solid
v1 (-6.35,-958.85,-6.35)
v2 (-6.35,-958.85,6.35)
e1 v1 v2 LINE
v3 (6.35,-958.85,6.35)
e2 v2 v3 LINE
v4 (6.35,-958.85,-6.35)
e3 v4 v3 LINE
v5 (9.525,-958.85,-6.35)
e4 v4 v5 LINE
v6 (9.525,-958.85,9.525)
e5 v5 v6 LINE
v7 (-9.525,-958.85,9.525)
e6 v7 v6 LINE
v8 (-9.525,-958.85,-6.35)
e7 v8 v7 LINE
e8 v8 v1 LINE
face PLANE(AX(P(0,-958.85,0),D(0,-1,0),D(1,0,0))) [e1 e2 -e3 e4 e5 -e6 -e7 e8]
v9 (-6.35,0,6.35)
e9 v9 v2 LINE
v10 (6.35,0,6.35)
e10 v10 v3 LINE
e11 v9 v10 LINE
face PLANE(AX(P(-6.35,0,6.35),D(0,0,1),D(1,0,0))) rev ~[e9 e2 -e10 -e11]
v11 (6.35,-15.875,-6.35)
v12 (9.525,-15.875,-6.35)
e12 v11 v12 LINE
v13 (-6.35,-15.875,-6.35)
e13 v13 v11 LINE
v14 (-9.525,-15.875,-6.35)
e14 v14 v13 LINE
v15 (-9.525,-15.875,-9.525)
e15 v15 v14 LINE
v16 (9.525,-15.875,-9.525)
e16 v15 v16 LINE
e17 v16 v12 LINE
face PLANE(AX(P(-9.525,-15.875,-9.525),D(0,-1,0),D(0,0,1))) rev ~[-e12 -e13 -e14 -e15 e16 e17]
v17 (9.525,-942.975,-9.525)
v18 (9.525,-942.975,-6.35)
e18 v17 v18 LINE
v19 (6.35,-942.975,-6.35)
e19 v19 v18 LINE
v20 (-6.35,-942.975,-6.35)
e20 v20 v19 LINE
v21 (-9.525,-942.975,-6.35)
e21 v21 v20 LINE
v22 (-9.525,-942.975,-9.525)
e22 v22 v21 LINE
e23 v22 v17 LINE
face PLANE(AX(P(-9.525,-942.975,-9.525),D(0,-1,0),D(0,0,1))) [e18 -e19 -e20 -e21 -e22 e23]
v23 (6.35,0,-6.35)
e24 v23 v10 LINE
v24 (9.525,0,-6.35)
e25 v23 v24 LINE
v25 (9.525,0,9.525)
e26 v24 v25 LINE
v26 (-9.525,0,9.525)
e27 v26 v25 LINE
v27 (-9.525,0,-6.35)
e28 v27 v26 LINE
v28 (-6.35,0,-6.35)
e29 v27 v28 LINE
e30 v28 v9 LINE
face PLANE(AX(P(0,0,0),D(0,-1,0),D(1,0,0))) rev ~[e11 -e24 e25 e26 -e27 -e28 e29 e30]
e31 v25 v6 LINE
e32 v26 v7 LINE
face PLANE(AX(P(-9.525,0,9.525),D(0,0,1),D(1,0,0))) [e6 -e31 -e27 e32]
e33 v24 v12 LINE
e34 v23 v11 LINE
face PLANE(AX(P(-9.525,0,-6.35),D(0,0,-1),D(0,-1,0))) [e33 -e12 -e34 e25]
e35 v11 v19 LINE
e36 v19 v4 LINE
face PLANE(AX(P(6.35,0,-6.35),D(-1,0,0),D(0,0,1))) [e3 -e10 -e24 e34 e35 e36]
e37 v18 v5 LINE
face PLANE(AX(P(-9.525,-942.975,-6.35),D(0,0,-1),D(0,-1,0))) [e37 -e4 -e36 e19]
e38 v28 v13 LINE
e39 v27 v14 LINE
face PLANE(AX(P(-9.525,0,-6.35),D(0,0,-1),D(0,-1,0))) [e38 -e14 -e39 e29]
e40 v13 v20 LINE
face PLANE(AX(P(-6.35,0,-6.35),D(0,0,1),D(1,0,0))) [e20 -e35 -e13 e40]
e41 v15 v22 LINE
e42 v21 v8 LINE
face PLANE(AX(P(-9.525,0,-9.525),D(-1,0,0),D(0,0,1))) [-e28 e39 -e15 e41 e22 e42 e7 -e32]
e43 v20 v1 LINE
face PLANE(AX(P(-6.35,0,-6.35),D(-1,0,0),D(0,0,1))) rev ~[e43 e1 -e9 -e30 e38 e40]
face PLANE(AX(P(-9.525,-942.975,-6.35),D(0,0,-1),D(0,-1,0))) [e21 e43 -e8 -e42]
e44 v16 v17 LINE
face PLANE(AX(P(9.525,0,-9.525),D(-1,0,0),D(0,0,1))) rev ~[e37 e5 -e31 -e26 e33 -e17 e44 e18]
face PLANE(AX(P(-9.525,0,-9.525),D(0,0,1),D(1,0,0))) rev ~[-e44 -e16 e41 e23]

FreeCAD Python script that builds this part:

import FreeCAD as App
import Part
import Sketcher
from FreeCAD import Vector
Q = App.Units.Quantity

doc = App.newDocument("Part")
body = doc.addObject("PartDesign::Body", "Body")

sketch1 = doc.addObject("Sketcher::SketchObject", "Sketch")
body.addObject(sketch1)
sketch1.AttachmentSupport = (doc.XZ_Plane, [""])
sketch1.MapMode = "FlatFace"
sketch1.addGeometry([
    Part.LineSegment(Vector(-10, 10, 0), Vector(-10, -10, 0)),
    Part.LineSegment(Vector(-10, -10, 0), Vector(10, -10, 0)),
    Part.LineSegment(Vector(10, -10, 0), Vector(10, 10, 0)),
    Part.LineSegment(Vector(10, 10, 0), Vector(-10, 10, 0)),
    Part.LineSegment(Vector(6, -6, 0), Vector(-6, -6, 0)),
    Part.LineSegment(Vector(-6, -6, 0), Vector(-6, 6, 0)),
    Part.LineSegment(Vector(-6, 6, 0), Vector(6, 6, 0)),
    Part.LineSegment(Vector(6, 6, 0), Vector(6, -6, 0)),
], False)
sketch1.addConstraint([
    Sketcher.Constraint("Coincident", 0, 2, 1, 1),
    Sketcher.Constraint("Coincident", 1, 2, 2, 1),
    Sketcher.Constraint("Coincident", 2, 2, 3, 1),
    Sketcher.Constraint("Coincident", 3, 2, 0, 1),
    Sketcher.Constraint("Coincident", 4, 2, 5, 1),
    Sketcher.Constraint("Coincident", 5, 2, 6, 1),
    Sketcher.Constraint("Coincident", 6, 2, 7, 1),
    Sketcher.Constraint("Coincident", 7, 2, 4, 1),
    Sketcher.Constraint("Vertical", 0),
    Sketcher.Constraint("Horizontal", 1),
    Sketcher.Constraint("Vertical", 2),
    Sketcher.Constraint("Horizontal", 3),
    Sketcher.Constraint("Horizontal", 4),
    Sketcher.Constraint("Vertical", 5),
    Sketcher.Constraint("Horizontal", 6),
    Sketcher.Constraint("Vertical", 7),
    Sketcher.Constraint("Symmetric", 0, 2, 2, 2, -1, 1),
    Sketcher.Constraint("Symmetric", 4, 2, 6, 2, -1, 1),
    Sketcher.Constraint("Equal", 3, 0),
    Sketcher.Constraint("Equal", 6, 5),
    Sketcher.Constraint("DistanceX", 4, 2, 4, 1, Q("0.5 in")),
    Sketcher.Constraint("DistanceX", 1, 1, 1, 2, Q("0.75 in")),
])
pad1 = doc.addObject("PartDesign::Pad", "Pad")
body.addObject(pad1)
pad1.Profile = sketch1
pad1.Length = Q("37.75 in")

sketch2 = doc.addObject("Sketcher::SketchObject", "Sketch001")
body.addObject(sketch2)
sketch2.AttachmentSupport = (doc.YZ_Plane, [""])
sketch2.MapMode = "FlatFace"
sketch2.AttachmentOffset = App.Placement(Vector(0, 0, -0.375 * 25.4), App.Rotation())
sketch2.addGeometry([
    Part.LineSegment(Vector(0, -6.3, 0), Vector(0, -9.5, 0)),
    Part.LineSegment(Vector(0, -9.5, 0), Vector(-15.9, -9.5, 0)),
    Part.LineSegment(Vector(-15.9, -9.5, 0), Vector(-15.9, -6.3, 0)),
    Part.LineSegment(Vector(-15.9, -6.3, 0), Vector(0, -6.3, 0)),
    Part.LineSegment(Vector(-943, -6.3, 0), Vector(-943, -9.5, 0)),
    Part.LineSegment(Vector(-943, -9.5, 0), Vector(-958.9, -9.5, 0)),
    Part.LineSegment(Vector(-958.9, -9.5, 0), Vector(-958.9, -6.3, 0)),
    Part.LineSegment(Vector(-958.9, -6.3, 0), Vector(-943, -6.3, 0)),
], False)
sketch2.addConstraint([
    Sketcher.Constraint("Coincident", 0, 2, 1, 1),
    Sketcher.Constraint("Coincident", 1, 2, 2, 1),
    Sketcher.Constraint("Coincident", 2, 2, 3, 1),
    Sketcher.Constraint("Coincident", 3, 2, 0, 1),
    Sketcher.Constraint("Coincident", 4, 2, 5, 1),
    Sketcher.Constraint("Coincident", 5, 2, 6, 1),
    Sketcher.Constraint("Coincident", 6, 2, 7, 1),
    Sketcher.Constraint("Coincident", 7, 2, 4, 1),
    Sketcher.Constraint("Vertical", 0),
    Sketcher.Constraint("Horizontal", 1),
    Sketcher.Constraint("Vertical", 2),
    Sketcher.Constraint("Horizontal", 3),
    Sketcher.Constraint("Vertical", 4),
    Sketcher.Constraint("Horizontal", 5),
    Sketcher.Constraint("Vertical", 6),
    Sketcher.Constraint("Horizontal", 7),
    Sketcher.Constraint("PointOnObject", 0, 2, -2),
    Sketcher.Constraint("Horizontal", 1, 2, 4, 2),
    Sketcher.Constraint("Horizontal", 3, 2, 6, 2),
    Sketcher.Constraint("Equal", 3, 5),
    Sketcher.Constraint("DistanceX", 4, 2, 1, 2, Q("36.5 in")),
    Sketcher.Constraint("DistanceX", 1, 2, 1, 1, Q("0.625 in")),
    Sketcher.Constraint("DistanceY", 0, 2, 0, 1, Q("0.125 in")),
    Sketcher.Constraint("DistanceY", 2, 2, -1, 1, Q("0.25 in")),
])
pocket1 = doc.addObject("PartDesign::Pocket", "Pocket")
body.addObject(pocket1)
pocket1.Profile = sketch2
pocket1.Length = Q("0.75 in")
pocket1.Reversed = True

doc.recompute()
